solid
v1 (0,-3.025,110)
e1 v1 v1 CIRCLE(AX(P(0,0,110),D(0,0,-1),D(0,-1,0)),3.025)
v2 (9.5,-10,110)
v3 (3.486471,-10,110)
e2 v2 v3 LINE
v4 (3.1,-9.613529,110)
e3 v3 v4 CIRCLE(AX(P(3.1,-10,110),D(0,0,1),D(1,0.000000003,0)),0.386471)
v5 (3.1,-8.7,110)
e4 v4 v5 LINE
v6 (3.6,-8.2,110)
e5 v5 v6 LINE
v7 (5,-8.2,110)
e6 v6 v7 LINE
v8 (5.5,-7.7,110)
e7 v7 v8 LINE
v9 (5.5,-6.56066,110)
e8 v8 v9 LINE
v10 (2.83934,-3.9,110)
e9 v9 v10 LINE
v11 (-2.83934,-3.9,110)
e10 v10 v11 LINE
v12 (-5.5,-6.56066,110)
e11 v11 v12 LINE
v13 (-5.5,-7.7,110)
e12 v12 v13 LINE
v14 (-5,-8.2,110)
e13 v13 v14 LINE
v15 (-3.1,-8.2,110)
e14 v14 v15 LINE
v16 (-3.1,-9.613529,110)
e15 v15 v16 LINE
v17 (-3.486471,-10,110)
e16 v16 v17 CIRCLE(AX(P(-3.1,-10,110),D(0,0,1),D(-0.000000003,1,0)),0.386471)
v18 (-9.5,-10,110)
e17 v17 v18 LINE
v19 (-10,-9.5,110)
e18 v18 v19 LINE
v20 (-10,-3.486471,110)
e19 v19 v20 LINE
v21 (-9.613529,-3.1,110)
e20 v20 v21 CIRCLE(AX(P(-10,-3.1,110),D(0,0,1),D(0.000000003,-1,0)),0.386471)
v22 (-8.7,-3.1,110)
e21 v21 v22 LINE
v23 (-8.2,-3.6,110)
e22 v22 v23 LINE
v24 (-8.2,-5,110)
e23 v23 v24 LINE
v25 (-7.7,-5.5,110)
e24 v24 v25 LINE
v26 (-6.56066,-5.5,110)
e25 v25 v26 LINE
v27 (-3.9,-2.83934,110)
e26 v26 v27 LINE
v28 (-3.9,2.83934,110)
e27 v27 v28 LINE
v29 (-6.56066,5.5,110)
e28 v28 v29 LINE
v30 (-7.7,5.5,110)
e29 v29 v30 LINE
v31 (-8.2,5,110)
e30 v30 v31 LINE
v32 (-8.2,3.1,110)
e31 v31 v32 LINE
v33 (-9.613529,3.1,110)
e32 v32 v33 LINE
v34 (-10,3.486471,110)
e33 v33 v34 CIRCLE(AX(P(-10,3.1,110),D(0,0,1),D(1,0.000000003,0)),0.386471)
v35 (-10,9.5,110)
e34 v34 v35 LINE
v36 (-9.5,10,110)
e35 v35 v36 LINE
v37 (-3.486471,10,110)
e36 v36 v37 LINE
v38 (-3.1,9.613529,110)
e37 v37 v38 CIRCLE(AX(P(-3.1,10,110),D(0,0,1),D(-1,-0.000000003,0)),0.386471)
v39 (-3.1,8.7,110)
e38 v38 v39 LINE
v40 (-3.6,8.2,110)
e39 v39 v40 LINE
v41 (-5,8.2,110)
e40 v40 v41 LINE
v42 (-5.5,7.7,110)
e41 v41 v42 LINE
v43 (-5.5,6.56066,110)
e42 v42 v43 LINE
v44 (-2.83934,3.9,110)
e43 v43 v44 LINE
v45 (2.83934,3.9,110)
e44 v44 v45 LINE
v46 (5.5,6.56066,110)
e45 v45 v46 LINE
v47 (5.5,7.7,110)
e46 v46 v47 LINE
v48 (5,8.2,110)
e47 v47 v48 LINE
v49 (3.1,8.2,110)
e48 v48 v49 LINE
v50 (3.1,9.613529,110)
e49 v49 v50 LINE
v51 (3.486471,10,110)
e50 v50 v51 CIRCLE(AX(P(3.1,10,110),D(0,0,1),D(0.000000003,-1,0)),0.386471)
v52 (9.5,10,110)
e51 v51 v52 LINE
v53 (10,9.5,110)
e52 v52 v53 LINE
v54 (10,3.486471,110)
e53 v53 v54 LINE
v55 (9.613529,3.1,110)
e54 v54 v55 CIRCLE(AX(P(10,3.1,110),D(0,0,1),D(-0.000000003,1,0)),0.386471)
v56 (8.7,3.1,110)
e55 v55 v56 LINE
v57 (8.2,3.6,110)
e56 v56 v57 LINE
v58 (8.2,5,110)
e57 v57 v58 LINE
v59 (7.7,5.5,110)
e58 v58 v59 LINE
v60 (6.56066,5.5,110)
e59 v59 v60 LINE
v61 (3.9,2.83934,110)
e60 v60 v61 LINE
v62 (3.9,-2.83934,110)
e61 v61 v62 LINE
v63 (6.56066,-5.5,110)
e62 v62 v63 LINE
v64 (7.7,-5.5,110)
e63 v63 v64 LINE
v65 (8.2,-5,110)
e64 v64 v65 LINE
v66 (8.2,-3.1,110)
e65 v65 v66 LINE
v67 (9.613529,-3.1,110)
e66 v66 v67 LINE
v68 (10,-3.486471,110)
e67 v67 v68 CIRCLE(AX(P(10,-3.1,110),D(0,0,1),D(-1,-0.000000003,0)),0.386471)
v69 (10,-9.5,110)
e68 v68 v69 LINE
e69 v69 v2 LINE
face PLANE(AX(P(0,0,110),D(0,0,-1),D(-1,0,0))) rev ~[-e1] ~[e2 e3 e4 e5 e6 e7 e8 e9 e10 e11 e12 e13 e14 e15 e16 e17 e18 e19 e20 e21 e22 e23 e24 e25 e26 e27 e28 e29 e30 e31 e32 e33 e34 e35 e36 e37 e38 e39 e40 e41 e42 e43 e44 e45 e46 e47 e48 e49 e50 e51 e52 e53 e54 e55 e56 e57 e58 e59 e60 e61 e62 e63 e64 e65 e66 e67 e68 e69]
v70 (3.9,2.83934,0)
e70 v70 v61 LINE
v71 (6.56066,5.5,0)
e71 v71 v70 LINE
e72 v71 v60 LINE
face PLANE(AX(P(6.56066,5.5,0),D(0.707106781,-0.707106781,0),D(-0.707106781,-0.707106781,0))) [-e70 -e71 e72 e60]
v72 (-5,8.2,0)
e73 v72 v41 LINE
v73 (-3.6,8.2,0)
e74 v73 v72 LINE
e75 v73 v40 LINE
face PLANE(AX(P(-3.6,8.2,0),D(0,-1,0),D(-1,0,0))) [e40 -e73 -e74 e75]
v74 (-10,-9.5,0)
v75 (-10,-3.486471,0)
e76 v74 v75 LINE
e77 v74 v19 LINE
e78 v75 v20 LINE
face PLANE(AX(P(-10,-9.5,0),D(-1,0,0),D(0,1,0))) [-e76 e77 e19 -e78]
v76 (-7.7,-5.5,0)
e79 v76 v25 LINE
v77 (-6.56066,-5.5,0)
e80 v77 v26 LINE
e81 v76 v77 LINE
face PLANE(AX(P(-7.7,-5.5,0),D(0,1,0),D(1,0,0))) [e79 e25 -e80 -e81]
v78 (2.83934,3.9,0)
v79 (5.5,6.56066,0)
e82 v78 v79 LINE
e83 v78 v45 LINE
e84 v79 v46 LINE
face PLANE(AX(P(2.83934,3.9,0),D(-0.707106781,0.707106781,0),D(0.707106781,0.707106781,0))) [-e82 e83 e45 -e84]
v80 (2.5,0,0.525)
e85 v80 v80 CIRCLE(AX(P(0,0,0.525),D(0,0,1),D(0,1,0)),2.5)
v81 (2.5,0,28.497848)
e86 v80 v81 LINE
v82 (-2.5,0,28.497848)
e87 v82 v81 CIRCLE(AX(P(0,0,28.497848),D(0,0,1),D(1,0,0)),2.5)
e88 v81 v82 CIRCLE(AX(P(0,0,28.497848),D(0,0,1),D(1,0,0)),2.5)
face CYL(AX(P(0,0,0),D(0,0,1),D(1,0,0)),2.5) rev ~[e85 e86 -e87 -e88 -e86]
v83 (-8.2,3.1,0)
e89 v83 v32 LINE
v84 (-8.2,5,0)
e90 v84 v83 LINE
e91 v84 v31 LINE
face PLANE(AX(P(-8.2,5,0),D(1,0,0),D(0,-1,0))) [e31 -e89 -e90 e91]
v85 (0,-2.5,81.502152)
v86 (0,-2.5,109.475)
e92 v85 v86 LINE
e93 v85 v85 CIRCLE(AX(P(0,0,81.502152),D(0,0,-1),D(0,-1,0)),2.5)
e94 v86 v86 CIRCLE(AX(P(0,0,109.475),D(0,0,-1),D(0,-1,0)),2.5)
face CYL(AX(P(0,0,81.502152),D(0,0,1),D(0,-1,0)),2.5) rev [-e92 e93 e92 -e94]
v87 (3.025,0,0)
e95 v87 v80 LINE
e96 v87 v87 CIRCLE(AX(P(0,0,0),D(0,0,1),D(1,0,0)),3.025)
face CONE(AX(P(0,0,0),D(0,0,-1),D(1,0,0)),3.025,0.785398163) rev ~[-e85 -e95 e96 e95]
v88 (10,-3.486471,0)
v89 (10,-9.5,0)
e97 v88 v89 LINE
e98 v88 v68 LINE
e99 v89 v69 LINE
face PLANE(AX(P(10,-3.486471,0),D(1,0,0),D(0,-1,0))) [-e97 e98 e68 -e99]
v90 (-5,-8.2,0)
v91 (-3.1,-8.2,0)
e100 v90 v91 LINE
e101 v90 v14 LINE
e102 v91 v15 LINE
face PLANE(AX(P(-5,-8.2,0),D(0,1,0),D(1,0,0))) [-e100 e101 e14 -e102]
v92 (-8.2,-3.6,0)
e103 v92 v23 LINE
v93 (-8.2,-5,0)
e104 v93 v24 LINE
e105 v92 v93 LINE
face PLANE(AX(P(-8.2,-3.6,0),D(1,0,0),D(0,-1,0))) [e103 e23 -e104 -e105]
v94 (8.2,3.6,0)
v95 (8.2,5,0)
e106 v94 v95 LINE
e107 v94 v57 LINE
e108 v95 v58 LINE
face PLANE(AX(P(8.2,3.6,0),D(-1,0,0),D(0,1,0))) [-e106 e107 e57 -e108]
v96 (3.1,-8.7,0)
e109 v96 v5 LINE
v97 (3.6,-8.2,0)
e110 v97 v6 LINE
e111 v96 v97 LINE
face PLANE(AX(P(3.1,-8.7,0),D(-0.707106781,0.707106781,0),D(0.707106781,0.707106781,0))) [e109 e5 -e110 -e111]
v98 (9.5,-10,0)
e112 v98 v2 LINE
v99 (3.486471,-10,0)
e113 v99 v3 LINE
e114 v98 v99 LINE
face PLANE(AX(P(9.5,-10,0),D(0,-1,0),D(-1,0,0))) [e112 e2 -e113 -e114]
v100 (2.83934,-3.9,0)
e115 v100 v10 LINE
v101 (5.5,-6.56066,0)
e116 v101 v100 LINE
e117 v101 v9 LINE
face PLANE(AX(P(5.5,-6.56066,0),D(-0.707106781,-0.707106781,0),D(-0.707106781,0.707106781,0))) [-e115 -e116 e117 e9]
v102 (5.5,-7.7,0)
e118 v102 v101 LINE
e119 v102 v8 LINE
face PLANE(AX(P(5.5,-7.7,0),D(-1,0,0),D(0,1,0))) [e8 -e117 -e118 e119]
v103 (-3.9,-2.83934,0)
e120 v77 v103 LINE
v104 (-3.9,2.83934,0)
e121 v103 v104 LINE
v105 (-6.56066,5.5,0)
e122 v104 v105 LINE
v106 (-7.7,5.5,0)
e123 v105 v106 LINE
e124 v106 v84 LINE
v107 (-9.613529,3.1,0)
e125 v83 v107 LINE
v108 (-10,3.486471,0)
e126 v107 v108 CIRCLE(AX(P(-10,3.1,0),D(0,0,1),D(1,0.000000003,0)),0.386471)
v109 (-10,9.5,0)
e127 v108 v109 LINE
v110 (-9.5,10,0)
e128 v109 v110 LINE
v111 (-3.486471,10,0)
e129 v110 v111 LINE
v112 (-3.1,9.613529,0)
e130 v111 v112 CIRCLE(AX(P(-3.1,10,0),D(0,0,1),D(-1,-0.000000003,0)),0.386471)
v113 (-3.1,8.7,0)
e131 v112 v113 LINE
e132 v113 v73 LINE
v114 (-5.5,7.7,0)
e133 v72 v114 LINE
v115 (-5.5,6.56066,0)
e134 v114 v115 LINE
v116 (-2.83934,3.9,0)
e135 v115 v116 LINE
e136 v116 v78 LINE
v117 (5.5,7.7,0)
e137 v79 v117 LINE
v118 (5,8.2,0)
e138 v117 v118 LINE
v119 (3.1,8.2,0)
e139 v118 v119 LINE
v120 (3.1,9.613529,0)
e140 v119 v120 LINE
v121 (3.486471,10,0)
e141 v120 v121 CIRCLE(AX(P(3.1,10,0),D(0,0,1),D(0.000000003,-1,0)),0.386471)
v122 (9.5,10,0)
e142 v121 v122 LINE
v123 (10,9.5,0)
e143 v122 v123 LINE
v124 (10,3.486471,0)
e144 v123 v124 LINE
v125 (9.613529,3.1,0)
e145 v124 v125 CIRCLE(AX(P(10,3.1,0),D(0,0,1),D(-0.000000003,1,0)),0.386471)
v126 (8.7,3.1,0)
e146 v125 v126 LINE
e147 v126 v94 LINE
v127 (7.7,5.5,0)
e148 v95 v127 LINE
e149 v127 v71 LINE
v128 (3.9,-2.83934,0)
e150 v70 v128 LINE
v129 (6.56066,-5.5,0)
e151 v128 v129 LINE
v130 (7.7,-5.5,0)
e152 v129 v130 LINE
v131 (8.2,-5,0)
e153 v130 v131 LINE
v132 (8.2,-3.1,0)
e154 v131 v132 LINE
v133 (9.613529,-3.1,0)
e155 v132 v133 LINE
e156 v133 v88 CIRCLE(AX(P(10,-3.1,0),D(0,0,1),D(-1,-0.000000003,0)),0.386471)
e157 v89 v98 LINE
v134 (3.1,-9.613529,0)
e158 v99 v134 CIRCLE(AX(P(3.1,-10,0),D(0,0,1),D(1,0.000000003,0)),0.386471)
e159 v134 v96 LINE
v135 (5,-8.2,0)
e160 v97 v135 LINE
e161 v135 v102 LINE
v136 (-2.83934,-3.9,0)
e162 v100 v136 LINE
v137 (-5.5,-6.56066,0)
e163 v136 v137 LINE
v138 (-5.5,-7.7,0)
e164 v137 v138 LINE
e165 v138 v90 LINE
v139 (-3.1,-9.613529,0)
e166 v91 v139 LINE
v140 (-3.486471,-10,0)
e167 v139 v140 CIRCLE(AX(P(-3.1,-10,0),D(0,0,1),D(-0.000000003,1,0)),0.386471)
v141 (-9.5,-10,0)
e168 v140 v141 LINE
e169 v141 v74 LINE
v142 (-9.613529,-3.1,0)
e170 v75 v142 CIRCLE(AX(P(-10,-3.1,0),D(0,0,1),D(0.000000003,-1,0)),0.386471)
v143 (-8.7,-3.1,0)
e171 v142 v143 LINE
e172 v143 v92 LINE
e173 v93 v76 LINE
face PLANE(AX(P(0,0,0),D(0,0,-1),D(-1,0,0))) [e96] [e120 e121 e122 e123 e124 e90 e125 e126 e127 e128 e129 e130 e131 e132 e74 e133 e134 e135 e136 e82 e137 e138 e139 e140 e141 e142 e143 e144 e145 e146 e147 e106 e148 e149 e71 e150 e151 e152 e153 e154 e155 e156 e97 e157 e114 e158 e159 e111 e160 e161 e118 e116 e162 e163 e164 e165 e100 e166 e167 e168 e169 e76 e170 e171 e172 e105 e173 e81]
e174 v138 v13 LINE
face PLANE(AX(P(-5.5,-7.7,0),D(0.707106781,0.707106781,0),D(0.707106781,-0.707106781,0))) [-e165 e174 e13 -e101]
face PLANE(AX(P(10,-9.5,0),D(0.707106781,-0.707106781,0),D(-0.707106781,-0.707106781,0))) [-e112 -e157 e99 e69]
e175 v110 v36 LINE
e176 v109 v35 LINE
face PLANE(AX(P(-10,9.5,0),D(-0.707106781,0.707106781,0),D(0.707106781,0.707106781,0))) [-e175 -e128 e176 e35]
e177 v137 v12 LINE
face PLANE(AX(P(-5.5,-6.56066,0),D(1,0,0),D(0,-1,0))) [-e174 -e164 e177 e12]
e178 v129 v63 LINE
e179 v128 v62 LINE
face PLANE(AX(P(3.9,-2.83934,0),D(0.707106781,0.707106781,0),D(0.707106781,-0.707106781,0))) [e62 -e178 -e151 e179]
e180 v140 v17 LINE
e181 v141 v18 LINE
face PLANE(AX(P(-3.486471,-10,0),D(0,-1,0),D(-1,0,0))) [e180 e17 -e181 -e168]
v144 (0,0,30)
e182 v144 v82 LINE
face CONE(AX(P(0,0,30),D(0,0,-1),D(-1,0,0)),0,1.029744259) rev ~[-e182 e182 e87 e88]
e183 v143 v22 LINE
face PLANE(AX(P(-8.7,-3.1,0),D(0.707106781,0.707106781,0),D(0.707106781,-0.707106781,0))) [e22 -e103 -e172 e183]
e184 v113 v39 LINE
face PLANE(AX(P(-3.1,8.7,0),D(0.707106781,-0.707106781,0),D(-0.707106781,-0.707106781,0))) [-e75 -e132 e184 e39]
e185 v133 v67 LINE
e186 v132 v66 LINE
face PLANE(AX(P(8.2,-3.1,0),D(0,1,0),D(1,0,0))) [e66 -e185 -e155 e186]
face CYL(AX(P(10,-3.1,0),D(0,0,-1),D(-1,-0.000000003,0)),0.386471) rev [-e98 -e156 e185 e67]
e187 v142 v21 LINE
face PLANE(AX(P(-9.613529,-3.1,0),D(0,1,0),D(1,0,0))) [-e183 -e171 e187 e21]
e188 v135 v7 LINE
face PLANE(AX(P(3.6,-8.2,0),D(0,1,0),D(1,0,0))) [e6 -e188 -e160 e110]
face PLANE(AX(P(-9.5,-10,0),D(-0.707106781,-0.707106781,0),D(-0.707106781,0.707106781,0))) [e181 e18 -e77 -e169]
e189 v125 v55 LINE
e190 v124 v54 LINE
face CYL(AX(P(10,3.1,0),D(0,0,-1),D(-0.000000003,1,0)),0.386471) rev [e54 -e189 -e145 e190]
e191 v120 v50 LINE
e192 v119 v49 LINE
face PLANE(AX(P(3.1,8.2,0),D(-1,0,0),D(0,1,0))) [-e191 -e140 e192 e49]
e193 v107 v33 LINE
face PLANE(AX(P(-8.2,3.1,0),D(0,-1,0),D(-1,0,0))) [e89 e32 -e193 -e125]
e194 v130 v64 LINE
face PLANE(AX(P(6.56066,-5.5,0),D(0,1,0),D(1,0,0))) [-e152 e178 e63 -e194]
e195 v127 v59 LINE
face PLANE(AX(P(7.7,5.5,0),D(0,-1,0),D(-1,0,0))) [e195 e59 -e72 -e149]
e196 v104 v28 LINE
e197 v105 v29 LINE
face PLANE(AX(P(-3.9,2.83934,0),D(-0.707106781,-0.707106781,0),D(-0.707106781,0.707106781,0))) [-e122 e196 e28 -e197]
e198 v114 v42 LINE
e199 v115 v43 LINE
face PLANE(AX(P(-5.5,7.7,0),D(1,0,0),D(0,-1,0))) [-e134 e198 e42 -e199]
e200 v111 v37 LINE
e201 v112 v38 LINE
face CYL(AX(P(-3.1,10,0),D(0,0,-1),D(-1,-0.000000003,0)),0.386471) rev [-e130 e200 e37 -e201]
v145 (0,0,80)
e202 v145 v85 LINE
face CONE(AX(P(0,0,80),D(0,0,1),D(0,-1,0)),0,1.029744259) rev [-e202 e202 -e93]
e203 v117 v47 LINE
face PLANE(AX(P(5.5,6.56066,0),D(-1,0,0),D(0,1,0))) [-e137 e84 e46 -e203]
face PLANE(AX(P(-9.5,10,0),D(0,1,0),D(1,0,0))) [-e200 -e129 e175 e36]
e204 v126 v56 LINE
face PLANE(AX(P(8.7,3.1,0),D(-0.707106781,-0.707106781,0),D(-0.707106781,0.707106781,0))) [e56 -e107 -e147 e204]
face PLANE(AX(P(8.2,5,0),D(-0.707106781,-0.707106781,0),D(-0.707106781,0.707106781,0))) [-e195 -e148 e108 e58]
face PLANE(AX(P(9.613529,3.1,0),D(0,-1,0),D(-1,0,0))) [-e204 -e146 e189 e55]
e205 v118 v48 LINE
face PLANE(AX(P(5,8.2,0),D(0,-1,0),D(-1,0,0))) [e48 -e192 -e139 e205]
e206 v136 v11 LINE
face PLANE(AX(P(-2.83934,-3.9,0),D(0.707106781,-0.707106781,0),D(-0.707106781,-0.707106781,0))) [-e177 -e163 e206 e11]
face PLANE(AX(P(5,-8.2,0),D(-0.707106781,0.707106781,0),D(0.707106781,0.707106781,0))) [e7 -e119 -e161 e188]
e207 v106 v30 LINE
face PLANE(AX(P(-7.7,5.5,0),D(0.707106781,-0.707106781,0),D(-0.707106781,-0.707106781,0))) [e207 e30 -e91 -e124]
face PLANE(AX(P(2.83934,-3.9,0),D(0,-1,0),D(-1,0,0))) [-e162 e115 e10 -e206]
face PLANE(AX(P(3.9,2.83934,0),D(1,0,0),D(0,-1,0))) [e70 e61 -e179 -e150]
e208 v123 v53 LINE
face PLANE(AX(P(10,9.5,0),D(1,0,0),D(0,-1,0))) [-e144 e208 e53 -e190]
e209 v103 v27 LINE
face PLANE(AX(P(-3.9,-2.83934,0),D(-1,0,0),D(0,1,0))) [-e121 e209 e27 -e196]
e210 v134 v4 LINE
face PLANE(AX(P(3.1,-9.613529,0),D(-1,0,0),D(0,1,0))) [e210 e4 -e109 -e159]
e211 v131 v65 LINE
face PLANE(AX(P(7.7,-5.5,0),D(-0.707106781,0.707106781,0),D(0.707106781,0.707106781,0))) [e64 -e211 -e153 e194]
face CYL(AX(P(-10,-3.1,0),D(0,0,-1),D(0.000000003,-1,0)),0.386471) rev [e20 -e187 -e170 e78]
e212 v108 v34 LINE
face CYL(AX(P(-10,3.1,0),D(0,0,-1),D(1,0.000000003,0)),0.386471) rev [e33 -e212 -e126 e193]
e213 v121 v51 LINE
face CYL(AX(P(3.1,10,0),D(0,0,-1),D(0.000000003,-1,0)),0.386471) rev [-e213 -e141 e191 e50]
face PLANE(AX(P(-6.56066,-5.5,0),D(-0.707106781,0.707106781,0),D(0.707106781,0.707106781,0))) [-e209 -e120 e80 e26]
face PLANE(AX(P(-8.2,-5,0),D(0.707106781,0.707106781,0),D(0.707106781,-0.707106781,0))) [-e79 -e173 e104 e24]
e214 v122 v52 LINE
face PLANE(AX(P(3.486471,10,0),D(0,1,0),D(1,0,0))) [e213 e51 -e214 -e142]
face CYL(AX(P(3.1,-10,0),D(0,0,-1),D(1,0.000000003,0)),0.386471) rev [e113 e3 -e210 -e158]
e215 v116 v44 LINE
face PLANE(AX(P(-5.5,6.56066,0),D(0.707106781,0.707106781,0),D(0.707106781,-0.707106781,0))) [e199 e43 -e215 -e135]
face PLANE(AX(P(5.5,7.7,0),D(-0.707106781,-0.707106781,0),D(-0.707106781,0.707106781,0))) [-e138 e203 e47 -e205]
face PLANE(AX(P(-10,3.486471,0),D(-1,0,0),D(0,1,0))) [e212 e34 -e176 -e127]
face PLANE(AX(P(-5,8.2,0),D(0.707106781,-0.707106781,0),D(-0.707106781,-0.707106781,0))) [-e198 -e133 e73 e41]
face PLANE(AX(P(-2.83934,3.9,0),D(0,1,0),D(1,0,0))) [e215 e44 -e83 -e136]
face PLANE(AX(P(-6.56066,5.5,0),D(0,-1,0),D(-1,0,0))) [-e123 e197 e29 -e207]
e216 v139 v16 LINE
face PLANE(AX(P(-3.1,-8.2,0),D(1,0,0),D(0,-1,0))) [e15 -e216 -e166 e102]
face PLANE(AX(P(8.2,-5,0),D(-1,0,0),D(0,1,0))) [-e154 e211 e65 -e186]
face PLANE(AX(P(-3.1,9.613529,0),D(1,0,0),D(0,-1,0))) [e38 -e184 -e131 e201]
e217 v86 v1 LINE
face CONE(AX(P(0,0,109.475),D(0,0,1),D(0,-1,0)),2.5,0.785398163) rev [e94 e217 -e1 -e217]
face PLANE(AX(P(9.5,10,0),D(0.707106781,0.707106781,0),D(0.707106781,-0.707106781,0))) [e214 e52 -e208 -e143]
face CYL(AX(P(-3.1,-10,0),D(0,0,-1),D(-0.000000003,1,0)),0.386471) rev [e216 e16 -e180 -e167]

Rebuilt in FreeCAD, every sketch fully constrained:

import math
import FreeCAD as App
import Part
import Sketcher
Q = App.Units.Quantity


def add_polygon(sketch, points):
    """Adds a closed chain of lines whose ends are joined by coincident constraints."""
    first, n = sketch.GeometryCount, len(points)
    for a, b in zip(points, points[1:] + points[:1]):
        sketch.addGeometry(Part.LineSegment(App.Vector(*a, 0), App.Vector(*b, 0)), False)
    for i in range(n):
        sketch.addConstraint(Sketcher.Constraint("Coincident", first + i, 2, first + (i + 1) % n, 1))

doc = App.newDocument("Part")
body = doc.addObject("PartDesign::Body", "Body")

sketch1 = doc.addObject("Sketcher::SketchObject", "Sketch")
body.addObject(sketch1)
sketch1.AttachmentSupport = (doc.XY_Plane, [""])
sketch1.MapMode = "FlatFace"
sketch1.addGeometry(Part.LineSegment(App.Vector(-3.486471, 10, 0), App.Vector(-9.5, 10, 0)), False)
sketch1.addGeometry(Part.LineSegment(App.Vector(-9.5, 10, 0), App.Vector(-10, 9.5, 0)), False)
sketch1.addGeometry(Part.LineSegment(App.Vector(-10, 9.5, 0), App.Vector(-10, 3.486471, 0)), False)
sketch1.addGeometry(Part.ArcOfCircle(Part.Circle(App.Vector(-10, 3.1, 0), App.Vector(0, 0, 1), 0.386471), math.radians(0), math.radians(90)), False)
sketch1.addGeometry(Part.LineSegment(App.Vector(-9.613529, 3.1, 0), App.Vector(-8.2, 3.1, 0)), False)
sketch1.addGeometry(Part.LineSegment(App.Vector(-8.2, 3.1, 0), App.Vector(-8.2, 5, 0)), False)
sketch1.addGeometry(Part.LineSegment(App.Vector(-8.2, 5, 0), App.Vector(-7.7, 5.5, 0)), False)
sketch1.addGeometry(Part.LineSegment(App.Vector(-7.7, 5.5, 0), App.Vector(-6.56066, 5.5, 0)), False)
sketch1.addGeometry(Part.LineSegment(App.Vector(-6.56066, 5.5, 0), App.Vector(-3.9, 2.83934, 0)), False)
sketch1.addGeometry(Part.LineSegment(App.Vector(-3.9, 2.83934, 0), App.Vector(-3.9, -2.83934, 0)), False)
sketch1.addGeometry(Part.LineSegment(App.Vector(-3.9, -2.83934, 0), App.Vector(-6.56066, -5.5, 0)), False)
sketch1.addGeometry(Part.LineSegment(App.Vector(-6.56066, -5.5, 0), App.Vector(-7.7, -5.5, 0)), False)
sketch1.addGeometry(Part.LineSegment(App.Vector(-7.7, -5.5, 0), App.Vector(-8.2, -5, 0)), False)
sketch1.addGeometry(Part.LineSegment(App.Vector(-8.2, -5, 0), App.Vector(-8.2, -3.6, 0)), False)
sketch1.addGeometry(Part.LineSegment(App.Vector(-8.2, -3.6, 0), App.Vector(-8.7, -3.1, 0)), False)
sketch1.addGeometry(Part.LineSegment(App.Vector(-8.7, -3.1, 0), App.Vector(-9.613529, -3.1, 0)), False)
sketch1.addGeometry(Part.ArcOfCircle(Part.Circle(App.Vector(-10, -3.1, 0), App.Vector(0, 0, 1), 0.386471), math.radians(-90), math.radians(0)), False)
sketch1.addGeometry(Part.LineSegment(App.Vector(-10, -3.486471, 0), App.Vector(-10, -9.5, 0)), False)
sketch1.addGeometry(Part.LineSegment(App.Vector(-10, -9.5, 0), App.Vector(-9.5, -10, 0)), False)
sketch1.addGeometry(Part.LineSegment(App.Vector(-9.5, -10, 0), App.Vector(-3.486471, -10, 0)), False)
sketch1.addGeometry(Part.ArcOfCircle(Part.Circle(App.Vector(-3.1, -10, 0), App.Vector(0, 0, 1), 0.386471), math.radians(90), math.radians(180)), False)
sketch1.addGeometry(Part.LineSegment(App.Vector(-3.1, -9.613529, 0), App.Vector(-3.1, -8.2, 0)), False)
sketch1.addGeometry(Part.LineSegment(App.Vector(-3.1, -8.2, 0), App.Vector(-5, -8.2, 0)), False)
sketch1.addGeometry(Part.LineSegment(App.Vector(-5, -8.2, 0), App.Vector(-5.5, -7.7, 0)), False)
sketch1.addGeometry(Part.LineSegment(App.Vector(-5.5, -7.7, 0), App.Vector(-5.5, -6.56066, 0)), False)
sketch1.addGeometry(Part.LineSegment(App.Vector(-5.5, -6.56066, 0), App.Vector(-2.83934, -3.9, 0)), False)
sketch1.addGeometry(Part.LineSegment(App.Vector(-2.83934, -3.9, 0), App.Vector(2.83934, -3.9, 0)), False)
sketch1.addGeometry(Part.LineSegment(App.Vector(2.83934, -3.9, 0), App.Vector(5.5, -6.56066, 0)), False)
sketch1.addGeometry(Part.LineSegment(App.Vector(5.5, -6.56066, 0), App.Vector(5.5, -7.7, 0)), False)
sketch1.addGeometry(Part.LineSegment(App.Vector(5.5, -7.7, 0), App.Vector(5, -8.2, 0)), False)
sketch1.addGeometry(Part.LineSegment(App.Vector(5, -8.2, 0), App.Vector(3.6, -8.2, 0)), False)
sketch1.addGeometry(Part.LineSegment(App.Vector(3.6, -8.2, 0), App.Vector(3.1, -8.7, 0)), False)
sketch1.addGeometry(Part.LineSegment(App.Vector(3.1, -8.7, 0), App.Vector(3.1, -9.613529, 0)), False)
sketch1.addGeometry(Part.ArcOfCircle(Part.Circle(App.Vector(3.1, -10, 0), App.Vector(0, 0, 1), 0.386471), math.radians(0), math.radians(90)), False)
sketch1.addGeometry(Part.LineSegment(App.Vector(3.486471, -10, 0), App.Vector(9.5, -10, 0)), False)
sketch1.addGeometry(Part.LineSegment(App.Vector(9.5, -10, 0), App.Vector(10, -9.5, 0)), False)
sketch1.addGeometry(Part.LineSegment(App.Vector(10, -9.5, 0), App.Vector(10, -3.486471, 0)), False)
sketch1.addGeometry(Part.ArcOfCircle(Part.Circle(App.Vector(10, -3.1, 0), App.Vector(0, 0, 1), 0.386471), math.radians(-180), math.radians(-90)), False)
sketch1.addGeometry(Part.LineSegment(App.Vector(9.613529, -3.1, 0), App.Vector(8.2, -3.1, 0)), False)
sketch1.addGeometry(Part.LineSegment(App.Vector(8.2, -3.1, 0), App.Vector(8.2, -5, 0)), False)
sketch1.addGeometry(Part.LineSegment(App.Vector(8.2, -5, 0), App.Vector(7.7, -5.5, 0)), False)
sketch1.addGeometry(Part.LineSegment(App.Vector(7.7, -5.5, 0), App.Vector(6.56066, -5.5, 0)), False)
sketch1.addGeometry(Part.LineSegment(App.Vector(6.56066, -5.5, 0), App.Vector(3.9, -2.83934, 0)), False)
sketch1.addGeometry(Part.LineSegment(App.Vector(3.9, -2.83934, 0), App.Vector(3.9, 2.83934, 0)), False)
sketch1.addGeometry(Part.LineSegment(App.Vector(3.9, 2.83934, 0), App.Vector(6.56066, 5.5, 0)), False)
sketch1.addGeometry(Part.LineSegment(App.Vector(6.56066, 5.5, 0), App.Vector(7.7, 5.5, 0)), False)
sketch1.addGeometry(Part.LineSegment(App.Vector(7.7, 5.5, 0), App.Vector(8.2, 5, 0)), False)
sketch1.addGeometry(Part.LineSegment(App.Vector(8.2, 5, 0), App.Vector(8.2, 3.6, 0)), False)
sketch1.addGeometry(Part.LineSegment(App.Vector(8.2, 3.6, 0), App.Vector(8.7, 3.1, 0)), False)
sketch1.addGeometry(Part.LineSegment(App.Vector(8.7, 3.1, 0), App.Vector(9.613529, 3.1, 0)), False)
sketch1.addGeometry(Part.ArcOfCircle(Part.Circle(App.Vector(10, 3.1, 0), App.Vector(0, 0, 1), 0.386471), math.radians(90), math.radians(180)), False)
sketch1.addGeometry(Part.LineSegment(App.Vector(10, 3.486471, 0), App.Vector(10, 9.5, 0)), False)
sketch1.addGeometry(Part.LineSegment(App.Vector(10, 9.5, 0), App.Vector(9.5, 10, 0)), False)
sketch1.addGeometry(Part.LineSegment(App.Vector(9.5, 10, 0), App.Vector(3.486471, 10, 0)), False)
sketch1.addGeometry(Part.ArcOfCircle(Part.Circle(App.Vector(3.1, 10, 0), App.Vector(0, 0, 1), 0.386471), math.radians(-90), math.radians(0)), False)
sketch1.addGeometry(Part.LineSegment(App.Vector(3.1, 9.613529, 0), App.Vector(3.1, 8.2, 0)), False)
sketch1.addGeometry(Part.LineSegment(App.Vector(3.1, 8.2, 0), App.Vector(5, 8.2, 0)), False)
sketch1.addGeometry(Part.LineSegment(App.Vector(5, 8.2, 0), App.Vector(5.5, 7.7, 0)), False)
sketch1.addGeometry(Part.LineSegment(App.Vector(5.5, 7.7, 0), App.Vector(5.5, 6.56066, 0)), False)
sketch1.addGeometry(Part.LineSegment(App.Vector(5.5, 6.56066, 0), App.Vector(2.83934, 3.9, 0)), False)
sketch1.addGeometry(Part.LineSegment(App.Vector(2.83934, 3.9, 0), App.Vector(-2.83934, 3.9, 0)), False)
sketch1.addGeometry(Part.LineSegment(App.Vector(-2.83934, 3.9, 0), App.Vector(-5.5, 6.56066, 0)), False)
sketch1.addGeometry(Part.LineSegment(App.Vector(-5.5, 6.56066, 0), App.Vector(-5.5, 7.7, 0)), False)
sketch1.addGeometry(Part.LineSegment(App.Vector(-5.5, 7.7, 0), App.Vector(-5, 8.2, 0)), False)
sketch1.addGeometry(Part.LineSegment(App.Vector(-5, 8.2, 0), App.Vector(-3.6, 8.2, 0)), False)
sketch1.addGeometry(Part.LineSegment(App.Vector(-3.6, 8.2, 0), App.Vector(-3.1, 8.7, 0)), False)
sketch1.addGeometry(Part.LineSegment(App.Vector(-3.1, 8.7, 0), App.Vector(-3.1, 9.613529, 0)), False)
sketch1.addGeometry(Part.ArcOfCircle(Part.Circle(App.Vector(-3.1, 10, 0), App.Vector(0, 0, 1), 0.386471), math.radians(-180), math.radians(-90)), False)
sketch1.addConstraint(Sketcher.Constraint("Coincident", 0, 2, 1, 1))
sketch1.addConstraint(Sketcher.Constraint("Coincident", 1, 2, 2, 1))
sketch1.addConstraint(Sketcher.Constraint("Coincident", 2, 2, 3, 2))
sketch1.addConstraint(Sketcher.Constraint("Coincident", 3, 1, 4, 1))
sketch1.addConstraint(Sketcher.Constraint("Coincident", 4, 2, 5, 1))
sketch1.addConstraint(Sketcher.Constraint("Coincident", 5, 2, 6, 1))
sketch1.addConstraint(Sketcher.Constraint("Coincident", 6, 2, 7, 1))
sketch1.addConstraint(Sketcher.Constraint("Coincident", 7, 2, 8, 1))
sketch1.addConstraint(Sketcher.Constraint("Coincident", 8, 2, 9, 1))
sketch1.addConstraint(Sketcher.Constraint("Coincident", 9, 2, 10, 1))
sketch1.addConstraint(Sketcher.Constraint("Coincident", 10, 2, 11, 1))
sketch1.addConstraint(Sketcher.Constraint("Coincident", 11, 2, 12, 1))
sketch1.addConstraint(Sketcher.Constraint("Coincident", 12, 2, 13, 1))
sketch1.addConstraint(Sketcher.Constraint("Coincident", 13, 2, 14, 1))
sketch1.addConstraint(Sketcher.Constraint("Coincident", 14, 2, 15, 1))
sketch1.addConstraint(Sketcher.Constraint("Coincident", 15, 2, 16, 2))
sketch1.addConstraint(Sketcher.Constraint("Coincident", 16, 1, 17, 1))
sketch1.addConstraint(Sketcher.Constraint("Coincident", 17, 2, 18, 1))
sketch1.addConstraint(Sketcher.Constraint("Coincident", 18, 2, 19, 1))
sketch1.addConstraint(Sketcher.Constraint("Coincident", 19, 2, 20, 2))
sketch1.addConstraint(Sketcher.Constraint("Coincident", 20, 1, 21, 1))
sketch1.addConstraint(Sketcher.Constraint("Coincident", 21, 2, 22, 1))
sketch1.addConstraint(Sketcher.Constraint("Coincident", 22, 2, 23, 1))
sketch1.addConstraint(Sketcher.Constraint("Coincident", 23, 2, 24, 1))
sketch1.addConstraint(Sketcher.Constraint("Coincident", 24, 2, 25, 1))
sketch1.addConstraint(Sketcher.Constraint("Coincident", 25, 2, 26, 1))
sketch1.addConstraint(Sketcher.Constraint("Coincident", 26, 2, 27, 1))
sketch1.addConstraint(Sketcher.Constraint("Coincident", 27, 2, 28, 1))
sketch1.addConstraint(Sketcher.Constraint("Coincident", 28, 2, 29, 1))
sketch1.addConstraint(Sketcher.Constraint("Coincident", 29, 2, 30, 1))
sketch1.addConstraint(Sketcher.Constraint("Coincident", 30, 2, 31, 1))
sketch1.addConstraint(Sketcher.Constraint("Coincident", 31, 2, 32, 1))
sketch1.addConstraint(Sketcher.Constraint("Coincident", 32, 2, 33, 2))
sketch1.addConstraint(Sketcher.Constraint("Coincident", 33, 1, 34, 1))
sketch1.addConstraint(Sketcher.Constraint("Coincident", 34, 2, 35, 1))
sketch1.addConstraint(Sketcher.Constraint("Coincident", 35, 2, 36, 1))
sketch1.addConstraint(Sketcher.Constraint("Coincident", 36, 2, 37, 2))
sketch1.addConstraint(Sketcher.Constraint("Coincident", 37, 1, 38, 1))
sketch1.addConstraint(Sketcher.Constraint("Coincident", 38, 2, 39, 1))
sketch1.addConstraint(Sketcher.Constraint("Coincident", 39, 2, 40, 1))
sketch1.addConstraint(Sketcher.Constraint("Coincident", 40, 2, 41, 1))
sketch1.addConstraint(Sketcher.Constraint("Coincident", 41, 2, 42, 1))
sketch1.addConstraint(Sketcher.Constraint("Coincident", 42, 2, 43, 1))
sketch1.addConstraint(Sketcher.Constraint("Coincident", 43, 2, 44, 1))
sketch1.addConstraint(Sketcher.Constraint("Coincident", 44, 2, 45, 1))
sketch1.addConstraint(Sketcher.Constraint("Coincident", 45, 2, 46, 1))
sketch1.addConstraint(Sketcher.Constraint("Coincident", 46, 2, 47, 1))
sketch1.addConstraint(Sketcher.Constraint("Coincident", 47, 2, 48, 1))
sketch1.addConstraint(Sketcher.Constraint("Coincident", 48, 2, 49, 1))
sketch1.addConstraint(Sketcher.Constraint("Coincident", 49, 2, 50, 2))
sketch1.addConstraint(Sketcher.Constraint("Coincident", 50, 1, 51, 1))
sketch1.addConstraint(Sketcher.Constraint("Coincident", 51, 2, 52, 1))
sketch1.addConstraint(Sketcher.Constraint("Coincident", 52, 2, 53, 1))
sketch1.addConstraint(Sketcher.Constraint("Coincident", 53, 2, 54, 2))
sketch1.addConstraint(Sketcher.Constraint("Coincident", 54, 1, 55, 1))
sketch1.addConstraint(Sketcher.Constraint("Coincident", 55, 2, 56, 1))
sketch1.addConstraint(Sketcher.Constraint("Coincident", 56, 2, 57, 1))
sketch1.addConstraint(Sketcher.Constraint("Coincident", 57, 2, 58, 1))
sketch1.addConstraint(Sketcher.Constraint("Coincident", 58, 2, 59, 1))
sketch1.addConstraint(Sketcher.Constraint("Coincident", 59, 2, 60, 1))
sketch1.addConstraint(Sketcher.Constraint("Coincident", 60, 2, 61, 1))
sketch1.addConstraint(Sketcher.Constraint("Coincident", 61, 2, 62, 1))
sketch1.addConstraint(Sketcher.Constraint("Coincident", 62, 2, 63, 1))
sketch1.addConstraint(Sketcher.Constraint("Coincident", 63, 2, 64, 1))
sketch1.addConstraint(Sketcher.Constraint("Coincident", 64, 2, 65, 1))
sketch1.addConstraint(Sketcher.Constraint("Coincident", 65, 2, 66, 1))
sketch1.addConstraint(Sketcher.Constraint("Coincident", 66, 2, 67, 2))
sketch1.addConstraint(Sketcher.Constraint("Coincident", 67, 1, 0, 1))
sketch1.addConstraint(Sketcher.Constraint("Horizontal", 0))
sketch1.addConstraint(Sketcher.Constraint("Vertical", 2))
sketch1.addConstraint(Sketcher.Constraint("Horizontal", 4))
sketch1.addConstraint(Sketcher.Constraint("Vertical", 5))
sketch1.addConstraint(Sketcher.Constraint("Horizontal", 7))
sketch1.addConstraint(Sketcher.Constraint("Vertical", 9))
sketch1.addConstraint(Sketcher.Constraint("Horizontal", 11))
sketch1.addConstraint(Sketcher.Constraint("Vertical", 13))
sketch1.addConstraint(Sketcher.Constraint("Horizontal", 15))
sketch1.addConstraint(Sketcher.Constraint("Vertical", 17))
sketch1.addConstraint(Sketcher.Constraint("Horizontal", 19))
sketch1.addConstraint(Sketcher.Constraint("Vertical", 21))
sketch1.addConstraint(Sketcher.Constraint("Horizontal", 22))
sketch1.addConstraint(Sketcher.Constraint("Vertical", 24))
sketch1.addConstraint(Sketcher.Constraint("Horizontal", 26))
sketch1.addConstraint(Sketcher.Constraint("Vertical", 28))
sketch1.addConstraint(Sketcher.Constraint("Horizontal", 30))
sketch1.addConstraint(Sketcher.Constraint("Vertical", 32))
sketch1.addConstraint(Sketcher.Constraint("Horizontal", 34))
sketch1.addConstraint(Sketcher.Constraint("Vertical", 36))
sketch1.addConstraint(Sketcher.Constraint("Horizontal", 38))
sketch1.addConstraint(Sketcher.Constraint("Vertical", 39))
sketch1.addConstraint(Sketcher.Constraint("Horizontal", 41))
sketch1.addConstraint(Sketcher.Constraint("Vertical", 43))
sketch1.addConstraint(Sketcher.Constraint("Horizontal", 45))
sketch1.addConstraint(Sketcher.Constraint("Vertical", 47))
sketch1.addConstraint(Sketcher.Constraint("Horizontal", 49))
sketch1.addConstraint(Sketcher.Constraint("Vertical", 51))
sketch1.addConstraint(Sketcher.Constraint("Horizontal", 53))
sketch1.addConstraint(Sketcher.Constraint("Vertical", 55))
sketch1.addConstraint(Sketcher.Constraint("Horizontal", 56))
sketch1.addConstraint(Sketcher.Constraint("Vertical", 58))
sketch1.addConstraint(Sketcher.Constraint("Horizontal", 60))
sketch1.addConstraint(Sketcher.Constraint("Vertical", 62))
sketch1.addConstraint(Sketcher.Constraint("Horizontal", 64))
sketch1.addConstraint(Sketcher.Constraint("Vertical", 66))
sketch1.addConstraint(Sketcher.Constraint("Equal", 3, 16))
sketch1.addConstraint(Sketcher.Constraint("Equal", 16, 20))
sketch1.addConstraint(Sketcher.Constraint("Equal", 20, 33))
sketch1.addConstraint(Sketcher.Constraint("Equal", 33, 37))
sketch1.addConstraint(Sketcher.Constraint("Equal", 37, 50))
sketch1.addConstraint(Sketcher.Constraint("Equal", 50, 54))
sketch1.addConstraint(Sketcher.Constraint("Equal", 54, 67))
sketch1.addConstraint(Sketcher.Constraint("Symmetric", 3, 3, 37, 3, -1, 1))
sketch1.addConstraint(Sketcher.Constraint("Symmetric", 16, 3, 50, 3, -1, 1))
sketch1.addConstraint(Sketcher.Constraint("Symmetric", 20, 3, 54, 3, -1, 1))
sketch1.addConstraint(Sketcher.Constraint("Symmetric", 33, 3, 67, 3, -1, 1))
sketch1.addConstraint(Sketcher.Constraint("Symmetric", 0, 2, 34, 2, -1, 1))
sketch1.addConstraint(Sketcher.Constraint("Symmetric", 1, 2, 35, 2, -1, 1))
sketch1.addConstraint(Sketcher.Constraint("Symmetric", 4, 2, 38, 2, -1, 1))
sketch1.addConstraint(Sketcher.Constraint("Symmetric", 6, 2, 40, 2, -1, 1))
sketch1.addConstraint(Sketcher.Constraint("Symmetric", 8, 2, 42, 2, -1, 1))
sketch1.addConstraint(Sketcher.Constraint("Symmetric", 10, 2, 44, 2, -1, 1))
sketch1.addConstraint(Sketcher.Constraint("Symmetric", 12, 2, 46, 2, -1, 1))
sketch1.addConstraint(Sketcher.Constraint("Symmetric", 14, 2, 48, 2, -1, 1))
sketch1.addConstraint(Sketcher.Constraint("Symmetric", 17, 2, 51, 2, -1, 1))
sketch1.addConstraint(Sketcher.Constraint("Symmetric", 18, 2, 52, 2, -1, 1))
sketch1.addConstraint(Sketcher.Constraint("Symmetric", 21, 2, 55, 2, -1, 1))
sketch1.addConstraint(Sketcher.Constraint("Symmetric", 23, 2, 57, 2, -1, 1))
sketch1.addConstraint(Sketcher.Constraint("Symmetric", 25, 2, 59, 2, -1, 1))
sketch1.addConstraint(Sketcher.Constraint("Symmetric", 27, 2, 61, 2, -1, 1))
sketch1.addConstraint(Sketcher.Constraint("Symmetric", 29, 2, 63, 2, -1, 1))
sketch1.addConstraint(Sketcher.Constraint("Symmetric", 31, 2, 65, 2, -1, 1))
sketch1.addConstraint(Sketcher.Constraint("Symmetric", 20, 3, 33, 3, -2))
sketch1.addConstraint(Sketcher.Constraint("Symmetric", 16, 3, 37, 3, -2))
sketch1.addConstraint(Sketcher.Constraint("Symmetric", 24, 2, 27, 2, -2))
sketch1.addConstraint(Sketcher.Constraint("Symmetric", 22, 2, 29, 2, -2))
sketch1.addConstraint(Sketcher.Constraint("Symmetric", 18, 2, 34, 2, -2))
sketch1.addConstraint(Sketcher.Constraint("Symmetric", 17, 2, 35, 2, -2))
sketch1.addConstraint(Sketcher.Constraint("Symmetric", 12, 2, 39, 2, -2))
sketch1.addConstraint(Sketcher.Constraint("Symmetric", 11, 2, 40, 2, -2))
sketch1.addConstraint(Sketcher.Constraint("Parallel", 1, 6))
sketch1.addConstraint(Sketcher.Constraint("Perpendicular", 6, 8))
sketch1.addConstraint(Sketcher.Constraint("Perpendicular", 8, 10))
sketch1.addConstraint(Sketcher.Constraint("Perpendicular", 10, 12))
sketch1.addConstraint(Sketcher.Constraint("Parallel", 12, 14))
sketch1.addConstraint(Sketcher.Constraint("Parallel", 14, 18))
sketch1.addConstraint(Sketcher.Constraint("Parallel", 18, 23))
sketch1.addConstraint(Sketcher.Constraint("Perpendicular", 23, 25))
sketch1.addConstraint(Sketcher.Constraint("Perpendicular", 25, 27))
sketch1.addConstraint(Sketcher.Constraint("Perpendicular", 27, 29))
sketch1.addConstraint(Sketcher.Constraint("Parallel", 29, 31))
sketch1.addConstraint(Sketcher.Constraint("Perpendicular", 40, 42))
sketch1.addConstraint(Sketcher.Constraint("Perpendicular", 42, 44))
sketch1.addConstraint(Sketcher.Constraint("Perpendicular", 44, 46))
sketch1.addConstraint(Sketcher.Constraint("Parallel", 46, 48))
sketch1.addConstraint(Sketcher.Constraint("Parallel", 52, 57))
sketch1.addConstraint(Sketcher.Constraint("Perpendicular", 57, 59))
sketch1.addConstraint(Sketcher.Constraint("Perpendicular", 59, 61))
sketch1.addConstraint(Sketcher.Constraint("Perpendicular", 61, 63))
sketch1.addConstraint(Sketcher.Constraint("Parallel", 63, 65))
sketch1.addConstraint(Sketcher.Constraint("Horizontal", 67, 3, 0, 2))
sketch1.addConstraint(Sketcher.Constraint("Horizontal", 50, 3, 3, 1))
sketch1.addConstraint(Sketcher.Constraint("Horizontal", 37, 3, 14, 2))
sketch1.addConstraint(Sketcher.Constraint("Horizontal", 9, 2, 42, 2))
sketch1.addConstraint(Sketcher.Constraint("Vertical", 16, 3, 1, 2))
sketch1.addConstraint(Sketcher.Constraint("Vertical", 67, 3, 20, 1))
sketch1.addConstraint(Sketcher.Constraint("Vertical", 54, 3, 31, 2))
sketch1.addConstraint(Sketcher.Constraint("Equal", 53, 2))
sketch1.addConstraint(Sketcher.Constraint("Equal", 56, 5))
sketch1.addConstraint(Sketcher.Constraint("Equal", 60, 9))
sketch1.addConstraint(Sketcher.Constraint("Equal", 64, 13))
sketch1.addConstraint(Sketcher.Constraint("Equal", 38, 21))
sketch1.addConstraint(Sketcher.Constraint("Equal", 45, 24))
sketch1.addConstraint(Sketcher.Constraint("Equal", 1, 6))
sketch1.addConstraint(Sketcher.Constraint("Equal", 12, 14))
sketch1.addConstraint(Sketcher.Constraint("Equal", 18, 23))
sketch1.addConstraint(Sketcher.Constraint("Equal", 10, 25))
sketch1.addConstraint(Sketcher.Constraint("DistanceX", 22, 2, 22, 1, Q("1.9 mm")))
sketch1.addConstraint(Sketcher.Constraint("DistanceX", 30, 2, 30, 1, Q("1.4 mm")))
sketch1.addConstraint(Sketcher.Constraint("DistanceX", 3, 3, -1, 1, Q("10 mm")))
sketch1.addConstraint(Sketcher.Constraint("DistanceY", -1, 1, 5, 2, Q("5 mm")))
sketch1.addConstraint(Sketcher.Constraint("DistanceX", 4, 2, -1, 1, Q("8.2 mm")))
sketch1.addConstraint(Sketcher.Constraint("DistanceX", 8, 2, -1, 1, Q("3.9 mm")))
sketch1.addConstraint(Sketcher.Constraint("Radius", 3, Q("0.386471 mm")))
sketch1.addConstraint(Sketcher.Constraint("DistanceX", 7, 1, 7, 2, Q("1.13934 mm")))
pad1 = doc.addObject("PartDesign::Pad", "Pad")
body.addObject(pad1)
pad1.Profile = sketch1
pad1.Length = 110

sketch2 = doc.addObject("Sketcher::SketchObject", "Sketch001")
body.addObject(sketch2)
sketch2.AttachmentSupport = (doc.YZ_Plane, [""])
sketch2.MapMode = "FlatFace"
add_polygon(sketch2, [(0, 80), (0, 110), (-3.025, 110), (-2.5, 109.475), (-2.5, 81.502152)])
sketch2.addConstraint(Sketcher.Constraint("Vertical", 0))
sketch2.addConstraint(Sketcher.Constraint("Horizontal", 1))
sketch2.addConstraint(Sketcher.Constraint("Vertical", 3))
sketch2.addConstraint(Sketcher.Constraint("PointOnObject", 0, 2, -2))
sketch2.addConstraint(Sketcher.Constraint("DistanceY", 0, 1, 0, 2, Q("30 mm")))
sketch2.addConstraint(Sketcher.Constraint("Angle", 2, Q("-45 deg")))
sketch2.addConstraint(Sketcher.Constraint("Angle", 4, Q("-31 deg")))
sketch2.addConstraint(Sketcher.Constraint("DistanceY", -1, 1, 0, 2, Q("110 mm")))
sketch2.addConstraint(Sketcher.Constraint("DistanceX", 2, 2, -1, 1, Q("2.5 mm")))
sketch2.addConstraint(Sketcher.Constraint("DistanceX", 1, 2, 1, 1, Q("3.025 mm")))
groove = doc.addObject("PartDesign::Groove", "Groove")
body.addObject(groove)
groove.Profile = sketch2
groove.ReferenceAxis = (sketch2, ["V_Axis"])
groove.Angle = 360

sketch3 = doc.addObject("Sketcher::SketchObject", "Sketch002")
body.addObject(sketch3)
sketch3.AttachmentSupport = (doc.XY_Plane, [""])
sketch3.MapMode = "FlatFace"
sketch3.addGeometry(Part.Circle(App.Vector(0, 0, 0), App.Vector(0, 0, 1), 2.5), False)
sketch3.addConstraint(Sketcher.Constraint("Coincident", 0, 3, -1, 1))
sketch3.addConstraint(Sketcher.Constraint("Diameter", 0, Q("5 mm")))
doc.recompute()
hole = doc.addObject("PartDesign::Hole", "Hole")
body.addObject(hole)
hole.Profile = sketch3
hole.ThreadType = "None"
hole.Diameter = 5
hole.DepthType = "Dimension"
hole.Depth = 28.497848
hole.DrillPoint = "Angled"
hole.DrillPointAngle = 118
hole.HoleCutType = "Countersink"
hole.HoleCutDiameter = 6.05
hole.HoleCutCountersinkAngle = 90
hole.Reversed = True

doc.recompute()
